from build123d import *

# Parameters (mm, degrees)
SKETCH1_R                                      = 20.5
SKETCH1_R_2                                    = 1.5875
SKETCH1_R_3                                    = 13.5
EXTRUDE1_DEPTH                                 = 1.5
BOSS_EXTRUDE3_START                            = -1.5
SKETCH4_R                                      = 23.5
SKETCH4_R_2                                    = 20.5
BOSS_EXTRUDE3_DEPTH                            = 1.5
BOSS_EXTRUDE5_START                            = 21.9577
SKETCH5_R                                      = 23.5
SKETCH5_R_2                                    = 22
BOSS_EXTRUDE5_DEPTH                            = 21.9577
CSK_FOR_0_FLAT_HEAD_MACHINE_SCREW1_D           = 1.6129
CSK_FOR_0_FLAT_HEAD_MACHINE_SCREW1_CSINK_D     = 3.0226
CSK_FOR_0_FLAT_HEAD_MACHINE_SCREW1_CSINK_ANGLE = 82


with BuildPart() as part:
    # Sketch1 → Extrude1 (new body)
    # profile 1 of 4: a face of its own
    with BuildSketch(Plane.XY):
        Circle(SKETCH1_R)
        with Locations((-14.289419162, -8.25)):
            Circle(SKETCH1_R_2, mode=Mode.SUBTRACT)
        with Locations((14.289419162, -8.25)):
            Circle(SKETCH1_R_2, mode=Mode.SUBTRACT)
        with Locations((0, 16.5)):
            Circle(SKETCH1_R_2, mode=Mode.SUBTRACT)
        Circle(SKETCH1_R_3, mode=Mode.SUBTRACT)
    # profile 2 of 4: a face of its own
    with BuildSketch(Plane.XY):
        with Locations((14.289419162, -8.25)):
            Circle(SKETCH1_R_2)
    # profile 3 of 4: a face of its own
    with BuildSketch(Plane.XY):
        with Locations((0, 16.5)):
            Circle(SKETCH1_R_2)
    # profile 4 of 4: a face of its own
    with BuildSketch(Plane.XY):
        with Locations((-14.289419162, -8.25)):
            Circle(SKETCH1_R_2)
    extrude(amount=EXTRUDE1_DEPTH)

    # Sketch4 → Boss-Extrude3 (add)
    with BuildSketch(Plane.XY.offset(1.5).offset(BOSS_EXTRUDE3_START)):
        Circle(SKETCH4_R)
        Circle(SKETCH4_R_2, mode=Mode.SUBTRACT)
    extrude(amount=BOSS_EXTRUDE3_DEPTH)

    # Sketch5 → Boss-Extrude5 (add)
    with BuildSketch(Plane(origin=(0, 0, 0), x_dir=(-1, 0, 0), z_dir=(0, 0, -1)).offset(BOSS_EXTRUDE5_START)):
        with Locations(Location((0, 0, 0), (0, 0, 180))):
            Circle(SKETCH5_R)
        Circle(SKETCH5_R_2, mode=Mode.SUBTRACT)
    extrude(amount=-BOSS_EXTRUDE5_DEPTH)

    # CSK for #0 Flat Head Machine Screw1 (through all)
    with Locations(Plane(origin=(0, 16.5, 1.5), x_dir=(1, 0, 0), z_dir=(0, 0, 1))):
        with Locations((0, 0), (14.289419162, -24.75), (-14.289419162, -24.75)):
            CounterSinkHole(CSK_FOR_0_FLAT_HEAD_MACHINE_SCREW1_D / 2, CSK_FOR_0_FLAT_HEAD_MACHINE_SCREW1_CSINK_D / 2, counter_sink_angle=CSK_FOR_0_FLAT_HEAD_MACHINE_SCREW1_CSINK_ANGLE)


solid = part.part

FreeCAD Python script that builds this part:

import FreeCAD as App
import Part
import Sketcher
Q = App.Units.Quantity

doc = App.newDocument("Part")
body = doc.addObject("PartDesign::Body", "Body")

sketch1 = body.newObject("Sketcher::SketchObject", "Sketch")
sketch1.AttachmentSupport = (doc.getObject("XY_Plane"), [""])
sketch1.MapMode = "FlatFace"
sketch1.addGeometry([
    Part.Circle(App.Vector(0, 0, 0), App.Vector(0, 0, 1), 20.5),
    Part.Circle(App.Vector(0, 0, 0), App.Vector(0, 0, 1), 13.5),
], False)
sketch1.addConstraint([
    Sketcher.Constraint("Coincident", 0, 3, -1, 1),
    Sketcher.Constraint("Coincident", 1, 3, -1, 1),
    Sketcher.Constraint("Diameter", 0, Q("41 mm")),
    Sketcher.Constraint("Diameter", 1, Q("27 mm")),
])
pad1 = body.newObject("PartDesign::Pad", "Pad")
pad1.Profile = sketch1
pad1.Length = 1.5

sketch2 = body.newObject("Sketcher::SketchObject", "Sketch001")
sketch2.AttachmentSupport = (doc.getObject("XY_Plane"), [""])
sketch2.MapMode = "FlatFace"
sketch2.addGeometry([
    Part.Circle(App.Vector(0, 0, 0), App.Vector(0, 0, 1), 23.5),
    Part.Circle(App.Vector(0, 0, 0), App.Vector(0, 0, 1), 20.5),
], False)
sketch2.addConstraint([
    Sketcher.Constraint("Coincident", 0, 3, -1, 1),
    Sketcher.Constraint("Coincident", 1, 3, -1, 1),
    Sketcher.Constraint("Diameter", 0, Q("47 mm")),
    Sketcher.Constraint("Diameter", 1, Q("41 mm")),
])
pad2 = body.newObject("PartDesign::Pad", "Pad001")
pad2.Profile = sketch2
pad2.Length = 1.5

sketch3 = body.newObject("Sketcher::SketchObject", "Sketch002")
sketch3.AttachmentSupport = (doc.getObject("XY_Plane"), [""])
sketch3.MapMode = "FlatFace"
sketch3.AttachmentOffset = App.Placement(App.Vector(0, 0, -21.9577), App.Rotation())
sketch3.addGeometry([
    Part.Circle(App.Vector(0, 0, 0), App.Vector(0, 0, 1), 23.5),
    Part.Circle(App.Vector(0, 0, 0), App.Vector(0, 0, 1), 22),
], False)
sketch3.addConstraint([
    Sketcher.Constraint("Coincident", 0, 3, -1, 1),
    Sketcher.Constraint("Coincident", 1, 3, -1, 1),
    Sketcher.Constraint("Diameter", 0, Q("47 mm")),
    Sketcher.Constraint("Diameter", 1, Q("44 mm")),
])
pad3 = body.newObject("PartDesign::Pad", "Pad002")
pad3.Profile = sketch3
pad3.Length = 21.9577

sketch4 = body.newObject("Sketcher::SketchObject", "Sketch003")
sketch4.AttachmentSupport = (doc.getObject("XY_Plane"), [""])
sketch4.MapMode = "FlatFace"
sketch4.AttachmentOffset = App.Placement(App.Vector(0, 0, 1.5), App.Rotation())
sketch4.addGeometry([
    Part.Circle(App.Vector(0, 16.5, 0), App.Vector(0, 0, 1), 0.80645),
    Part.Circle(App.Vector(14.289419, -8.25, 0), App.Vector(0, 0, 1), 0.80645),
    Part.Circle(App.Vector(-14.289419, -8.25, 0), App.Vector(0, 0, 1), 0.80645),
], False)
sketch4.addConstraint([
    Sketcher.Constraint("Equal", 0, 1),
    Sketcher.Constraint("Equal", 1, 2),
    Sketcher.Constraint("Symmetric", 1, 3, 2, 3, -2),
    Sketcher.Constraint("PointOnObject", 0, 3, -2),
    Sketcher.Constraint("Diameter", 0, Q("1.6129 mm")),
    Sketcher.Constraint("DistanceY", -1, 1, 0, 3, Q("16.5 mm")),
    Sketcher.Constraint("DistanceY", 1, 3, -1, 1, Q("8.25 mm")),
    Sketcher.Constraint("DistanceX", -1, 1, 1, 3, Q("14.289419 mm")),
])
doc.recompute()
hole = body.newObject("PartDesign::Hole", "Hole")
hole.Profile = sketch4
hole.ThreadType = "None"
hole.Diameter = 1.6129
hole.DepthType = "ThroughAll"
hole.HoleCutType = "Countersink"
hole.HoleCutDiameter = 3.0226
hole.HoleCutCountersinkAngle = 82

doc.recompute()
